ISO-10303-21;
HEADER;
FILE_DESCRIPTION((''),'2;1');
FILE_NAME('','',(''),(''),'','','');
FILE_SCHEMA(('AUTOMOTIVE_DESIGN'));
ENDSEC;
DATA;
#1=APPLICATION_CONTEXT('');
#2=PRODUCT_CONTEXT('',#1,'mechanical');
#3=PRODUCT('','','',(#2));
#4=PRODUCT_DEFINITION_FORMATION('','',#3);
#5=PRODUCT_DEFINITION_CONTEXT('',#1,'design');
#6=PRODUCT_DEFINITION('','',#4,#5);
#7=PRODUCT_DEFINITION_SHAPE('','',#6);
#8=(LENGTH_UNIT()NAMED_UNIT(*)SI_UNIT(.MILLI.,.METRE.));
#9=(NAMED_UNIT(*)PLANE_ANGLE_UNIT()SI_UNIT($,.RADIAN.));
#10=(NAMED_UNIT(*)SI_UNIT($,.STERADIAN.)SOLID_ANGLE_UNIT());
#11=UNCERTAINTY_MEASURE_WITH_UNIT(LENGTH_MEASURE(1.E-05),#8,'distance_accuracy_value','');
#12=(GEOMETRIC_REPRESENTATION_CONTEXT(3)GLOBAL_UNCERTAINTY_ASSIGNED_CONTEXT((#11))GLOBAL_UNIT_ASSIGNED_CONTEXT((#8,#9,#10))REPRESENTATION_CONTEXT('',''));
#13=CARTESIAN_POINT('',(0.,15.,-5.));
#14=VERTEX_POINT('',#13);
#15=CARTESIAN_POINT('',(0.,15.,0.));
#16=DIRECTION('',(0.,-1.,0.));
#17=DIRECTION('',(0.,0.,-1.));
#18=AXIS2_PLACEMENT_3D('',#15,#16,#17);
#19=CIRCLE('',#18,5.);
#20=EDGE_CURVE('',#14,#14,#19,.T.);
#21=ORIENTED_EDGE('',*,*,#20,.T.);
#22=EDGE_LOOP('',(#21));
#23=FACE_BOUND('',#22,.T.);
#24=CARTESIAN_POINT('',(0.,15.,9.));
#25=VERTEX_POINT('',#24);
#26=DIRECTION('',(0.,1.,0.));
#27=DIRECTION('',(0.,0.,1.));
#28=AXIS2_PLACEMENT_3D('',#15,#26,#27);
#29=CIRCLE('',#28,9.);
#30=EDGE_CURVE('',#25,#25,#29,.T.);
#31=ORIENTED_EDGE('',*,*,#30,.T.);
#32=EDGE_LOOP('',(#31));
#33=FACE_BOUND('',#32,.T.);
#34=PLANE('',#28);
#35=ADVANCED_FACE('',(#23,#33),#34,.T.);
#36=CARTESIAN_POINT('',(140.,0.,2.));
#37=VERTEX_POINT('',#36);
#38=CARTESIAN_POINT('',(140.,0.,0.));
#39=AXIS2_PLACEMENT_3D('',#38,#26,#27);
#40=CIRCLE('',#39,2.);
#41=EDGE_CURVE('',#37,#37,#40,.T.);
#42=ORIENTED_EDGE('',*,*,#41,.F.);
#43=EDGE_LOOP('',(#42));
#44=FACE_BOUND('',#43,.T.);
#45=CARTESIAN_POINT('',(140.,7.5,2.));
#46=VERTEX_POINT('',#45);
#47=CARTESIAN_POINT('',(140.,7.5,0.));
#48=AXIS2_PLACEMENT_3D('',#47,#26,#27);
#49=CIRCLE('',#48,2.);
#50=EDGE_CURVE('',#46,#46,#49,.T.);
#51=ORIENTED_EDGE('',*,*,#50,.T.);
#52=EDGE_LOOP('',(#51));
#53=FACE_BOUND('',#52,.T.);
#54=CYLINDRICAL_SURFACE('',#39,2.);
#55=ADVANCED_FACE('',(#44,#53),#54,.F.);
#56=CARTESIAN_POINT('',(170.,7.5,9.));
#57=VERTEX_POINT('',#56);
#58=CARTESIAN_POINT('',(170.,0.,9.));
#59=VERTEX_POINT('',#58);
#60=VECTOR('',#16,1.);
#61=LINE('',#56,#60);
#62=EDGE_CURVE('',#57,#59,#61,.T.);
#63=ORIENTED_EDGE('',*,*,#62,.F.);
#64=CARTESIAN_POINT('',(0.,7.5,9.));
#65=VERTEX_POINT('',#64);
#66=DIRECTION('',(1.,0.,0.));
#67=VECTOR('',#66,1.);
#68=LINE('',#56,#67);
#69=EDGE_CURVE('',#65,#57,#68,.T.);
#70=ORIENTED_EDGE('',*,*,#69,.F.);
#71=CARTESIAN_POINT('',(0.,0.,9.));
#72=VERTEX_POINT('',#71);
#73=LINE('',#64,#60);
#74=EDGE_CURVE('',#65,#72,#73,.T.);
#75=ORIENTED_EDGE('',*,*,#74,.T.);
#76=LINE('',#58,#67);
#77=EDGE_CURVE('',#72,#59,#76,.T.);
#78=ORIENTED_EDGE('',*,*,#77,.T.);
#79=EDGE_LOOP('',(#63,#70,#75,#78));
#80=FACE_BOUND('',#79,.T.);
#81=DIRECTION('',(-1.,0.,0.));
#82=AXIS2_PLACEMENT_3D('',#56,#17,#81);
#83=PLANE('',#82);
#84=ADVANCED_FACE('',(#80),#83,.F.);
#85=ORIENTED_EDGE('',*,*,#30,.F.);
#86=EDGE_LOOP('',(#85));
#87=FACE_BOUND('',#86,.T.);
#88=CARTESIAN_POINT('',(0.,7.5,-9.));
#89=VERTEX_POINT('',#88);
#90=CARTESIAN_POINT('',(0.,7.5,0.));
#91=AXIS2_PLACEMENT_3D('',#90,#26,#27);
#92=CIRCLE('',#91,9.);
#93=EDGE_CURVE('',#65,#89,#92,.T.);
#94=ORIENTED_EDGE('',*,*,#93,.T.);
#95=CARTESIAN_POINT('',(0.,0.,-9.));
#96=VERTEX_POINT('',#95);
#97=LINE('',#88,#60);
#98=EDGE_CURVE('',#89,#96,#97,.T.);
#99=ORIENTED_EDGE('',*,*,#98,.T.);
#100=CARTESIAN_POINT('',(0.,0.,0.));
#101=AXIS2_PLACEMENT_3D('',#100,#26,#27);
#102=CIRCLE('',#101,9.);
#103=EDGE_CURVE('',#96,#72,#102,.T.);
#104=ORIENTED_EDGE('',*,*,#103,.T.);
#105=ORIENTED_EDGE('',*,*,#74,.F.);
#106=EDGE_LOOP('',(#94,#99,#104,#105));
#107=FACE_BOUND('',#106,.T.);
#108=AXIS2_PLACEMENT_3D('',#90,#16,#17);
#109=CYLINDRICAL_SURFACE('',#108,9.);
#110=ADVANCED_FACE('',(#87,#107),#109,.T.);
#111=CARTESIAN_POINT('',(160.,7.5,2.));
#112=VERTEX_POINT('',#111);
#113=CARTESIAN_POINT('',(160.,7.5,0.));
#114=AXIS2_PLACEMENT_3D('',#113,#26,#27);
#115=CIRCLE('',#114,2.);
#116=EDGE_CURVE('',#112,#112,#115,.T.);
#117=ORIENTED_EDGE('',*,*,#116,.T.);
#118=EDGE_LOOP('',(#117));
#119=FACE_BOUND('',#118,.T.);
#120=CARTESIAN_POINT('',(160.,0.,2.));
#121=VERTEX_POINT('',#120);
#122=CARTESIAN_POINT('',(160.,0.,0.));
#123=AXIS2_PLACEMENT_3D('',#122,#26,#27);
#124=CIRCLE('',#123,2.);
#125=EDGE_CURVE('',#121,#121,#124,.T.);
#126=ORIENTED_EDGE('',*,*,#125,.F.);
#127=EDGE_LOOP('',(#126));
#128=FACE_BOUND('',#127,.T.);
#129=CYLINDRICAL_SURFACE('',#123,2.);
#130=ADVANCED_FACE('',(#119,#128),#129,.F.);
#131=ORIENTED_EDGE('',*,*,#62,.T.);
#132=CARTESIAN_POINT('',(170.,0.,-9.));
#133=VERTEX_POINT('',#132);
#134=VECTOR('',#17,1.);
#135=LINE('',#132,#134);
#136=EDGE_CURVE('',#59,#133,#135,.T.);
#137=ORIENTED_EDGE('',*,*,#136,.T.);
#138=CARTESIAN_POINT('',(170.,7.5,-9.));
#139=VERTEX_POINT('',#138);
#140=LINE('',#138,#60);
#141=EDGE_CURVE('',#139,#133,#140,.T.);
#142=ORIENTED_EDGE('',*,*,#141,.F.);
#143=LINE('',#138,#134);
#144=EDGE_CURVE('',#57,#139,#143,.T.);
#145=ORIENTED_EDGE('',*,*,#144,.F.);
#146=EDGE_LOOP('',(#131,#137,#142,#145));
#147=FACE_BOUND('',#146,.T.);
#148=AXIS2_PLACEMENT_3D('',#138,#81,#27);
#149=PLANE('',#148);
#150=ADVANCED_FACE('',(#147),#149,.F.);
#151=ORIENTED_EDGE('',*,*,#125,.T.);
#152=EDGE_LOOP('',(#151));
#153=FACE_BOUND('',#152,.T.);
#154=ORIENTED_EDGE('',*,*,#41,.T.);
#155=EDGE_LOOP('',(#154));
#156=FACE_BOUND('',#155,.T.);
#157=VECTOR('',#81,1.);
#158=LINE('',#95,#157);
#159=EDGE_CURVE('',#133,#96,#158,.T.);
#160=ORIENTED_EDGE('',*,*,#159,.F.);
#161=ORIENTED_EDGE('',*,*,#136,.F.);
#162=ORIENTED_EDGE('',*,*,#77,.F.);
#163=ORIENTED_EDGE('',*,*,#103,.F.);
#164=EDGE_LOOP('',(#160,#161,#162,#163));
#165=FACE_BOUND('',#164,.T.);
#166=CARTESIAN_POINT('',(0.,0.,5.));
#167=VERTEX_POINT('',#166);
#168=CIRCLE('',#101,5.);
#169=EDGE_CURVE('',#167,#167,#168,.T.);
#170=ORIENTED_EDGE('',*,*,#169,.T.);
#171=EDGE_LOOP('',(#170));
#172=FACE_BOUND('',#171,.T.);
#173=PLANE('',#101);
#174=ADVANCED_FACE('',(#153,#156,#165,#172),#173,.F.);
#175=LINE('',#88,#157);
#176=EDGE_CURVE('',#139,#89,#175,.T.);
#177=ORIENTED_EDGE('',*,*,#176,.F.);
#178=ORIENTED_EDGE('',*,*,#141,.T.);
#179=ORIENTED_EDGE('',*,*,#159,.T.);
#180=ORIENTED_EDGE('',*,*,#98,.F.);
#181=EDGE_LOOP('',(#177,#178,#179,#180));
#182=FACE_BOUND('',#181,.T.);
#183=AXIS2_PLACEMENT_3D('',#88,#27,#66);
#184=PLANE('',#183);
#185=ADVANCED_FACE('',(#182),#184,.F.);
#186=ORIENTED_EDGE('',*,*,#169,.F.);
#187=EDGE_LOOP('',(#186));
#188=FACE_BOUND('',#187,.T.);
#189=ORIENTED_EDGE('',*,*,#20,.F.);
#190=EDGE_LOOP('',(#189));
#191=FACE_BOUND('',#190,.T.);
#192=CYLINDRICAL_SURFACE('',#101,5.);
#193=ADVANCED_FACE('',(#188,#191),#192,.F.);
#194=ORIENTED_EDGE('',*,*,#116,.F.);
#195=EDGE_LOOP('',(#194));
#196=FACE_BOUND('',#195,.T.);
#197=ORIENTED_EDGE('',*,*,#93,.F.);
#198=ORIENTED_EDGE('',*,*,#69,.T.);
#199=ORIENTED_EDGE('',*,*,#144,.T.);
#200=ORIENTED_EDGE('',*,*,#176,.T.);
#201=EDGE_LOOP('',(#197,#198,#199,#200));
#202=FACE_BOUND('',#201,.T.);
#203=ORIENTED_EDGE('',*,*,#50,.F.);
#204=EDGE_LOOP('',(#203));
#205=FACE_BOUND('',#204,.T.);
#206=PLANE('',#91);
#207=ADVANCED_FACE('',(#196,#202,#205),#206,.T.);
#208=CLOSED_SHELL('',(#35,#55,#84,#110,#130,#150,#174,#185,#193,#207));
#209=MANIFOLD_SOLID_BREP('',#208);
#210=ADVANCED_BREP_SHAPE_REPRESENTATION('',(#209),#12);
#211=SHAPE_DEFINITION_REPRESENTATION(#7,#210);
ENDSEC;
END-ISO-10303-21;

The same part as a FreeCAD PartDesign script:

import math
import FreeCAD as App
import Part
import Sketcher
Q = App.Units.Quantity

doc = App.newDocument("Part")
params = doc.addObject("Spreadsheet::Sheet", "Params")
for row, (alias, value) in enumerate([
    ("sketch1_radius", "9 mm"),
    ("sketch1_width", "170 mm"),
    ("pad1_length", "7.5 mm"),
    ("sketch2_diameter", "10 mm"),
    ("sketch2_diameter2", "4 mm"),
    ("sketch3_diameter", "18 mm"),
    ("pad2_length", "7.5 mm"),
    ("sketch4_diameter", "10 mm"),
], start=1):
    params.set(f"A{row}", alias)
    params.set(f"B{row}", "=" + value)
    params.setAlias(f"B{row}", alias)

body = doc.addObject("PartDesign::Body", "Body")

sketch1 = body.newObject("Sketcher::SketchObject", "Sketch")
sketch1.AttachmentSupport = (doc.getObject("XZ_Plane"), [""])
sketch1.MapMode = "FlatFace"
sketch1.addGeometry([
    Part.LineSegment(App.Vector(170, -9, 0), App.Vector(0, -9, 0)),
    Part.ArcOfCircle(Part.Circle(App.Vector(0, 0, 0), App.Vector(0, 0, 1), 9), math.radians(90), math.radians(270)),
    Part.LineSegment(App.Vector(0, 9, 0), App.Vector(170, 9, 0)),
    Part.LineSegment(App.Vector(170, 9, 0), App.Vector(170, -9, 0)),
], False)
sketch1.addConstraint([
    Sketcher.Constraint("Tangent", 0, 2, 1, 2),
    Sketcher.Constraint("Tangent", 1, 1, 2, 1),
    Sketcher.Constraint("Coincident", 2, 2, 3, 1),
    Sketcher.Constraint("Coincident", 3, 2, 0, 1),
    Sketcher.Constraint("Horizontal", 0),
    Sketcher.Constraint("Horizontal", 2),
    Sketcher.Constraint("Vertical", 3),
    Sketcher.Constraint("Coincident", 1, 3, -1, 1),
    Sketcher.Constraint("Radius", 1, Q("9 mm")),
    Sketcher.Constraint("DistanceX", 0, 2, 0, 1, Q("170 mm")),
])
sketch1.setExpression("Constraints[8]", "Params.sketch1_radius")
sketch1.setExpression("Constraints[9]", "Params.sketch1_width")
pad1 = body.newObject("PartDesign::Pad", "Pad")
pad1.Profile = sketch1
pad1.setExpression("Length", "Params.pad1_length")
pad1.Reversed = True

sketch2 = body.newObject("Sketcher::SketchObject", "Sketch001")
sketch2.AttachmentSupport = (doc.getObject("XZ_Plane"), [""])
sketch2.MapMode = "FlatFace"
sketch2.AttachmentOffset = App.Placement(App.Vector(0, 0, -7.5), App.Rotation())
sketch2.addGeometry([
    Part.Circle(App.Vector(0, 0, 0), App.Vector(0, 0, 1), 5),
    Part.Circle(App.Vector(160, 0, 0), App.Vector(0, 0, 1), 2),
    Part.Circle(App.Vector(140, 0, 0), App.Vector(0, 0, 1), 2),
], False)
sketch2.addConstraint([
    Sketcher.Constraint("Coincident", 0, 3, -1, 1),
    Sketcher.Constraint("Equal", 1, 2),
    Sketcher.Constraint("PointOnObject", 1, 3, -1),
    Sketcher.Constraint("PointOnObject", 2, 3, -1),
    Sketcher.Constraint("Diameter", 0, Q("10 mm")),
    Sketcher.Constraint("Diameter", 1, Q("4 mm")),
    Sketcher.Constraint("DistanceX", -1, 1, 1, 3, Q("160 mm")),
    Sketcher.Constraint("DistanceX", -1, 1, 2, 3, Q("140 mm")),
])
sketch2.setExpression("Constraints[4]", "Params.sketch2_diameter")
sketch2.setExpression("Constraints[5]", "Params.sketch2_diameter2")
pocket1 = body.newObject("PartDesign::Pocket", "Pocket")
pocket1.Profile = sketch2
pocket1.Type = "ThroughAll"
pocket1.Reversed = True

sketch3 = body.newObject("Sketcher::SketchObject", "Sketch002")
sketch3.AttachmentSupport = (doc.getObject("XZ_Plane"), [""])
sketch3.MapMode = "FlatFace"
sketch3.AttachmentOffset = App.Placement(App.Vector(0, 0, -7.5), App.Rotation())
sketch3.addGeometry(Part.Circle(App.Vector(0, 0, 0), App.Vector(0, 0, 1), 9), False)
sketch3.addConstraint([
    Sketcher.Constraint("Coincident", 0, 3, -1, 1),
    Sketcher.Constraint("Diameter", 0, Q("18 mm")),
])
sketch3.setExpression("Constraints[1]", "Params.sketch3_diameter")
pad2 = body.newObject("PartDesign::Pad", "Pad001")
pad2.Profile = sketch3
pad2.setExpression("Length", "Params.pad2_length")
pad2.Reversed = True

sketch4 = body.newObject("Sketcher::SketchObject", "Sketch003")
sketch4.AttachmentSupport = (doc.getObject("XZ_Plane"), [""])
sketch4.MapMode = "FlatFace"
sketch4.AttachmentOffset = App.Placement(App.Vector(0, 0, -7.5), App.Rotation())
sketch4.addGeometry(Part.Circle(App.Vector(0, 0, 0), App.Vector(0, 0, 1), 5), False)
sketch4.addConstraint([
    Sketcher.Constraint("Coincident", 0, 3, -1, 1),
    Sketcher.Constraint("Diameter", 0, Q("10 mm")),
])
sketch4.setExpression("Constraints[1]", "Params.sketch4_diameter")
pocket2 = body.newObject("PartDesign::Pocket", "Pocket001")
pocket2.Profile = sketch4
pocket2.Type = "ThroughAll"

doc.recompute()
